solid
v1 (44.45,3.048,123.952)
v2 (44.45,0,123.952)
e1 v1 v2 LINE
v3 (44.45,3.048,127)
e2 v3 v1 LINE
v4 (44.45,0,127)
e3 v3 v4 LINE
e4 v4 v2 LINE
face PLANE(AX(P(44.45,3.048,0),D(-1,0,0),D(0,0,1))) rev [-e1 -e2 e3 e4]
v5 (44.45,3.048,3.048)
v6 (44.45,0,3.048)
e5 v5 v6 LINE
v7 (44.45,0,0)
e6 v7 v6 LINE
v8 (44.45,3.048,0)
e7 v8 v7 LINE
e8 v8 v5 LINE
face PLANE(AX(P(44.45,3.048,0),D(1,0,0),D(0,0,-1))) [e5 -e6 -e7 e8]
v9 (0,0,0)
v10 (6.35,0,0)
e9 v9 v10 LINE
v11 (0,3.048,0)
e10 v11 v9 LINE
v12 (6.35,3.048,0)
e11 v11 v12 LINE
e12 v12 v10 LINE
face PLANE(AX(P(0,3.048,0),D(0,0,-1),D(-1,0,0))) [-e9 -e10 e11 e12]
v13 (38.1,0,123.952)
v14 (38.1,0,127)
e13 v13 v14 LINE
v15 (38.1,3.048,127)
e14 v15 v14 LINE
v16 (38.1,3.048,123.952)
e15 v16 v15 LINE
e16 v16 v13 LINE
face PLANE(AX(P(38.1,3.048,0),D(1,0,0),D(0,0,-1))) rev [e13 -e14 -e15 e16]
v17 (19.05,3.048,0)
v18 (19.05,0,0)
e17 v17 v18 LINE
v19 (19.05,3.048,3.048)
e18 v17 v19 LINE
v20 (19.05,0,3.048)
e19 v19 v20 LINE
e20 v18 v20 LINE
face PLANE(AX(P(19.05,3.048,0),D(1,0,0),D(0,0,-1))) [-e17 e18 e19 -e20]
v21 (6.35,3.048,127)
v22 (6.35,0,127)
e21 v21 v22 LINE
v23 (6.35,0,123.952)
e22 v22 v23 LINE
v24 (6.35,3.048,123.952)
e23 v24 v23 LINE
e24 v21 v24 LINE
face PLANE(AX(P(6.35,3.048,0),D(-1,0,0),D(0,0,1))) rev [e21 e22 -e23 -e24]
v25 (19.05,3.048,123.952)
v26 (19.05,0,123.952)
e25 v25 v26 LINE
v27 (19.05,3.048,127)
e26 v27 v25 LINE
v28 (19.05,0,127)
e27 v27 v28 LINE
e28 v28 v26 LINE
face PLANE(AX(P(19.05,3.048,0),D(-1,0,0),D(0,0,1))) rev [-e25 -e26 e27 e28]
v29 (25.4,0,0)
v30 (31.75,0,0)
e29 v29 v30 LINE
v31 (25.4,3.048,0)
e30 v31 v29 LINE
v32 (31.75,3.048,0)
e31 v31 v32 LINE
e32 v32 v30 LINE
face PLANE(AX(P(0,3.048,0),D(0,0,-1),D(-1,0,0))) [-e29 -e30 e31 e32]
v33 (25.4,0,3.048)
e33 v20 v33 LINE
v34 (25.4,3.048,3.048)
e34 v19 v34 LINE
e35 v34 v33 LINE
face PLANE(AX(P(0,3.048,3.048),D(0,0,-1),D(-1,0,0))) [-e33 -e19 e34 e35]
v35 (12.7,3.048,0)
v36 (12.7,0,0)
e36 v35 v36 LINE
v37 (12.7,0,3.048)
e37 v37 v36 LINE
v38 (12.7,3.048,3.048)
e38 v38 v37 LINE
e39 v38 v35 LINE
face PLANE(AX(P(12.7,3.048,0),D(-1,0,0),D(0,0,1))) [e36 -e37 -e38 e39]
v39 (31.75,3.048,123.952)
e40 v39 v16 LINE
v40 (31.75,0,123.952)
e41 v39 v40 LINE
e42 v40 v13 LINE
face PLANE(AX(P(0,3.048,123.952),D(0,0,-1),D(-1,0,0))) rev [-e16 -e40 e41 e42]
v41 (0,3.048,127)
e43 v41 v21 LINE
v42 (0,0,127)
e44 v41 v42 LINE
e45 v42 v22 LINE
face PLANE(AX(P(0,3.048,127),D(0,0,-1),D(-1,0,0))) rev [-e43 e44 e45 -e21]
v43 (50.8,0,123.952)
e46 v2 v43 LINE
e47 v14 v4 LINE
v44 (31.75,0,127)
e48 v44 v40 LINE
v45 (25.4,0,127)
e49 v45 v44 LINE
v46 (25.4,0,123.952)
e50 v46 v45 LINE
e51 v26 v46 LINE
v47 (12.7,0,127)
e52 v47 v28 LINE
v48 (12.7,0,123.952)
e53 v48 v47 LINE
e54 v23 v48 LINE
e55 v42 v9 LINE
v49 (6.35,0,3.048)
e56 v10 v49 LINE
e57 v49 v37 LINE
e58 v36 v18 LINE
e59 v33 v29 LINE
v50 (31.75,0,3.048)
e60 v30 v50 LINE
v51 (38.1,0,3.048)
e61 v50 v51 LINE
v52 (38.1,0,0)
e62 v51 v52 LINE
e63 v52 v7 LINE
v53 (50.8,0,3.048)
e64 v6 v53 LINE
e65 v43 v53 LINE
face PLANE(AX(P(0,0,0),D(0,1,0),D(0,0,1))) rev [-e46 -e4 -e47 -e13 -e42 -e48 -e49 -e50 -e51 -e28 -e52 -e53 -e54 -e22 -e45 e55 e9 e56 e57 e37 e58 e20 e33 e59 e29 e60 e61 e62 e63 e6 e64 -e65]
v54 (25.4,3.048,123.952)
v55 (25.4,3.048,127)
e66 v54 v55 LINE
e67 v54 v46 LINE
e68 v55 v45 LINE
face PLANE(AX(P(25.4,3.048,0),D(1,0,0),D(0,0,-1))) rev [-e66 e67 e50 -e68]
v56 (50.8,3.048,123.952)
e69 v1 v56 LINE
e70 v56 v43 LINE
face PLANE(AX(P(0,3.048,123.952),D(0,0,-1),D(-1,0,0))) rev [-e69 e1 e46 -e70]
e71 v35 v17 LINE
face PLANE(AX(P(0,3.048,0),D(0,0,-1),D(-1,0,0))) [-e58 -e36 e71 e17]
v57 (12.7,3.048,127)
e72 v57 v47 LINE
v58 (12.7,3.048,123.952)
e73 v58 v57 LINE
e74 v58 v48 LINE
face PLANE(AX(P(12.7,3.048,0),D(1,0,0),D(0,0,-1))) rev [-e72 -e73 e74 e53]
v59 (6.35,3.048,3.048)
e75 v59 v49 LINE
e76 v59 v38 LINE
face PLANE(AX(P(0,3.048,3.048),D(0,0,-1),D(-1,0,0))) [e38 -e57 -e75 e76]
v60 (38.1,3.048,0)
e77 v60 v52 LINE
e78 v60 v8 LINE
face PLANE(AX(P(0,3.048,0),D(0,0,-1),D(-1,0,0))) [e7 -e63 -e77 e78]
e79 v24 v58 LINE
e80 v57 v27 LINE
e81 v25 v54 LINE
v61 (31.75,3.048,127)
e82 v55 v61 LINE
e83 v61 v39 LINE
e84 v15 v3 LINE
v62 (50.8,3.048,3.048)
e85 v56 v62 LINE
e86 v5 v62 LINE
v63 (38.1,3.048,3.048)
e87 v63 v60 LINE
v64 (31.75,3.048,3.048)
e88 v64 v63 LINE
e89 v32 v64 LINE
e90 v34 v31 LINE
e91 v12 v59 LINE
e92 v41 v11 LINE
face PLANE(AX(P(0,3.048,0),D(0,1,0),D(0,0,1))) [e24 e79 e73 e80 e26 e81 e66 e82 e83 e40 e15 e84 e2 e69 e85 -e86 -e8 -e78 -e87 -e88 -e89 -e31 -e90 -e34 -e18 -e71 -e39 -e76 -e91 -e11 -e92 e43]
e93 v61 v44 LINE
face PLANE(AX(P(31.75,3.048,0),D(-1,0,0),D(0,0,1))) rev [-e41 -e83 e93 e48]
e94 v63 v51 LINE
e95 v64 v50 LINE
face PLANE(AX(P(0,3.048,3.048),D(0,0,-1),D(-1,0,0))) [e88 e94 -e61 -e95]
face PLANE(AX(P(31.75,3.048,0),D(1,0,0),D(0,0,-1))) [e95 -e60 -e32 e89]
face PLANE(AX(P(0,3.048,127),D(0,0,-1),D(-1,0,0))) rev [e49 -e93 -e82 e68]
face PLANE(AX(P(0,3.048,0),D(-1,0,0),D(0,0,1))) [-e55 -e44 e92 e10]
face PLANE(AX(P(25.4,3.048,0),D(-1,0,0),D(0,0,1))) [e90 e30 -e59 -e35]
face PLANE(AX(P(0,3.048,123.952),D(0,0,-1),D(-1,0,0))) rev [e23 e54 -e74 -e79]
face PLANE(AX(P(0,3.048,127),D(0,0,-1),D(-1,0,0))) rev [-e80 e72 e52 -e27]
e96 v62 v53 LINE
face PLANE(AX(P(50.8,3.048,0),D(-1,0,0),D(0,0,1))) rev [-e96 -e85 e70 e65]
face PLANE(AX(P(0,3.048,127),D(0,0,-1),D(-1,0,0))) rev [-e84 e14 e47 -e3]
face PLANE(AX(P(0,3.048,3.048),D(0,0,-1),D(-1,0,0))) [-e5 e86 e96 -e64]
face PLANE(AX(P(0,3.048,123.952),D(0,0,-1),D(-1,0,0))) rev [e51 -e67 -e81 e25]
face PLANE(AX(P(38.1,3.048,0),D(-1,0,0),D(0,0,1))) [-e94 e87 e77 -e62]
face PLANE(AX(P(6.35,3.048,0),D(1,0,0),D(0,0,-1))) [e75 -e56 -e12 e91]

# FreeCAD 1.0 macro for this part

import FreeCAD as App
import Part
import Sketcher

V = App.Vector
Q = App.Units.Quantity

doc = App.newDocument("Part")
params = doc.addObject("Spreadsheet::Sheet", "Params")
for row, (alias, value) in enumerate([
    ("sketch1_height", "5 in"),
    ("sketch1_height2", "0.12 in"),
    ("pad1_length", "0.12 in"),
], start=1):
    params.set(f"A{row}", alias)
    params.set(f"B{row}", "=" + value)
    params.setAlias(f"B{row}", alias)

body = doc.addObject("PartDesign::Body", "Body")

# Sketch on XZ plane
sketch1 = body.newObject("Sketcher::SketchObject", "Sketch")
sketch1.AttachmentSupport = (doc.getObject("XZ_Plane"), [""])
sketch1.MapMode = "FlatFace"
sketch1.addGeometry([
    Part.LineSegment(V(6.3, 0, 0), V(0, 0, 0)),  # 0
    Part.LineSegment(V(0, 0, 0), V(0, 127, 0)),  # 1
    Part.LineSegment(V(0, 127, 0), V(6.3, 127, 0)),  # 2
    Part.LineSegment(V(6.3, 127, 0), V(6.3, 124, 0)),  # 3
    Part.LineSegment(V(6.3, 124, 0), V(12.7, 124, 0)),  # 4
    Part.LineSegment(V(12.7, 124, 0), V(12.7, 127, 0)),  # 5
    Part.LineSegment(V(12.7, 127, 0), V(19.1, 127, 0)),  # 6
    Part.LineSegment(V(19.1, 127, 0), V(19.1, 124, 0)),  # 7
    Part.LineSegment(V(19.1, 124, 0), V(25.4, 124, 0)),  # 8
    Part.LineSegment(V(25.4, 124, 0), V(25.4, 127, 0)),  # 9
    Part.LineSegment(V(25.4, 127, 0), V(31.8, 127, 0)),  # 10
    Part.LineSegment(V(31.8, 127, 0), V(31.8, 124, 0)),  # 11
    Part.LineSegment(V(31.8, 124, 0), V(38.1, 124, 0)),  # 12
    Part.LineSegment(V(38.1, 124, 0), V(38.1, 127, 0)),  # 13
    Part.LineSegment(V(38.1, 127, 0), V(44.5, 127, 0)),  # 14
    Part.LineSegment(V(44.5, 127, 0), V(44.5, 124, 0)),  # 15
    Part.LineSegment(V(44.5, 124, 0), V(50.8, 124, 0)),  # 16
    Part.LineSegment(V(50.8, 124, 0), V(50.8, 3, 0)),  # 17
    Part.LineSegment(V(50.8, 3, 0), V(44.5, 3, 0)),  # 18
    Part.LineSegment(V(44.5, 3, 0), V(44.5, 0, 0)),  # 19
    Part.LineSegment(V(44.5, 0, 0), V(38.1, 0, 0)),  # 20
    Part.LineSegment(V(38.1, 0, 0), V(38.1, 3, 0)),  # 21
    Part.LineSegment(V(38.1, 3, 0), V(31.8, 3, 0)),  # 22
    Part.LineSegment(V(31.8, 3, 0), V(31.8, 0, 0)),  # 23
    Part.LineSegment(V(31.8, 0, 0), V(25.4, 0, 0)),  # 24
    Part.LineSegment(V(25.4, 0, 0), V(25.4, 3, 0)),  # 25
    Part.LineSegment(V(25.4, 3, 0), V(19.1, 3, 0)),  # 26
    Part.LineSegment(V(19.1, 3, 0), V(19.1, 0, 0)),  # 27
    Part.LineSegment(V(19.1, 0, 0), V(12.7, 0, 0)),  # 28
    Part.LineSegment(V(12.7, 0, 0), V(12.7, 3, 0)),  # 29
    Part.LineSegment(V(12.7, 3, 0), V(6.3, 3, 0)),  # 30
    Part.LineSegment(V(6.3, 3, 0), V(6.3, 0, 0)),  # 31
], False)
sketch1.addConstraint([
    Sketcher.Constraint("Coincident", 0, 2, 1, 1),
    Sketcher.Constraint("Coincident", 1, 2, 2, 1),
    Sketcher.Constraint("Coincident", 2, 2, 3, 1),
    Sketcher.Constraint("Coincident", 3, 2, 4, 1),
    Sketcher.Constraint("Coincident", 4, 2, 5, 1),
    Sketcher.Constraint("Coincident", 5, 2, 6, 1),
    Sketcher.Constraint("Coincident", 6, 2, 7, 1),
    Sketcher.Constraint("Coincident", 7, 2, 8, 1),
    Sketcher.Constraint("Coincident", 8, 2, 9, 1),
    Sketcher.Constraint("Coincident", 9, 2, 10, 1),
    Sketcher.Constraint("Coincident", 10, 2, 11, 1),
    Sketcher.Constraint("Coincident", 11, 2, 12, 1),
    Sketcher.Constraint("Coincident", 12, 2, 13, 1),
    Sketcher.Constraint("Coincident", 13, 2, 14, 1),
    Sketcher.Constraint("Coincident", 14, 2, 15, 1),
    Sketcher.Constraint("Coincident", 15, 2, 16, 1),
    Sketcher.Constraint("Coincident", 16, 2, 17, 1),
    Sketcher.Constraint("Coincident", 17, 2, 18, 1),
    Sketcher.Constraint("Coincident", 18, 2, 19, 1),
    Sketcher.Constraint("Coincident", 19, 2, 20, 1),
    Sketcher.Constraint("Coincident", 20, 2, 21, 1),
    Sketcher.Constraint("Coincident", 21, 2, 22, 1),
    Sketcher.Constraint("Coincident", 22, 2, 23, 1),
    Sketcher.Constraint("Coincident", 23, 2, 24, 1),
    Sketcher.Constraint("Coincident", 24, 2, 25, 1),
    Sketcher.Constraint("Coincident", 25, 2, 26, 1),
    Sketcher.Constraint("Coincident", 26, 2, 27, 1),
    Sketcher.Constraint("Coincident", 27, 2, 28, 1),
    Sketcher.Constraint("Coincident", 28, 2, 29, 1),
    Sketcher.Constraint("Coincident", 29, 2, 30, 1),
    Sketcher.Constraint("Coincident", 30, 2, 31, 1),
    Sketcher.Constraint("Coincident", 31, 2, 0, 1),
    Sketcher.Constraint("Horizontal", 0),
    Sketcher.Constraint("Vertical", 1),
    Sketcher.Constraint("Horizontal", 2),
    Sketcher.Constraint("Vertical", 3),
    Sketcher.Constraint("Horizontal", 4),
    Sketcher.Constraint("Vertical", 5),
    Sketcher.Constraint("Horizontal", 6),
    Sketcher.Constraint("Vertical", 7),
    Sketcher.Constraint("Horizontal", 8),
    Sketcher.Constraint("Vertical", 9),
    Sketcher.Constraint("Horizontal", 10),
    Sketcher.Constraint("Vertical", 11),
    Sketcher.Constraint("Horizontal", 12),
    Sketcher.Constraint("Vertical", 13),
    Sketcher.Constraint("Horizontal", 14),
    Sketcher.Constraint("Vertical", 15),
    Sketcher.Constraint("Horizontal", 16),
    Sketcher.Constraint("Vertical", 17),
    Sketcher.Constraint("Horizontal", 18),
    Sketcher.Constraint("Vertical", 19),
    Sketcher.Constraint("Horizontal", 20),
    Sketcher.Constraint("Vertical", 21),
    Sketcher.Constraint("Horizontal", 22),
    Sketcher.Constraint("Vertical", 23),
    Sketcher.Constraint("Horizontal", 24),
    Sketcher.Constraint("Vertical", 25),
    Sketcher.Constraint("Horizontal", 26),
    Sketcher.Constraint("Vertical", 27),
    Sketcher.Constraint("Horizontal", 28),
    Sketcher.Constraint("Vertical", 29),
    Sketcher.Constraint("Horizontal", 30),
    Sketcher.Constraint("Vertical", 31),
    Sketcher.Constraint("Coincident", 0, 2, -1, 1),
    Sketcher.Constraint("PointOnObject", 19, 2, -1),
    Sketcher.Constraint("PointOnObject", 23, 2, -1),
    Sketcher.Constraint("PointOnObject", 27, 2, -1),
    Sketcher.Constraint("Horizontal", 2, 2, 5, 2),
    Sketcher.Constraint("Horizontal", 4, 2, 7, 2),
    Sketcher.Constraint("Horizontal", 6, 2, 9, 2),
    Sketcher.Constraint("Horizontal", 8, 2, 11, 2),
    Sketcher.Constraint("Horizontal", 10, 2, 13, 2),
    Sketcher.Constraint("Horizontal", 12, 2, 15, 2),
    Sketcher.Constraint("Horizontal", 18, 2, 21, 2),
    Sketcher.Constraint("Horizontal", 22, 2, 25, 2),
    Sketcher.Constraint("Horizontal", 26, 2, 29, 2),
    Sketcher.Constraint("Vertical", 15, 2, 18, 2),
    Sketcher.Constraint("Vertical", 13, 2, 20, 2),
    Sketcher.Constraint("Vertical", 11, 2, 22, 2),
    Sketcher.Constraint("Vertical", 9, 2, 24, 2),
    Sketcher.Constraint("Vertical", 7, 2, 26, 2),
    Sketcher.Constraint("Vertical", 5, 2, 28, 2),
    Sketcher.Constraint("Vertical", 3, 2, 30, 2),
    Sketcher.Constraint("Equal", 2, 4),
    Sketcher.Constraint("Equal", 4, 6),
    Sketcher.Constraint("Equal", 6, 8),
    Sketcher.Constraint("Equal", 8, 10),
    Sketcher.Constraint("Equal", 10, 12),
    Sketcher.Constraint("Equal", 12, 14),
    Sketcher.Constraint("Equal", 14, 16),
    Sketcher.Constraint("Equal", 15, 19),
    Sketcher.Constraint("DistanceY", 1, 1, 1, 2, Q("5 in")),
    Sketcher.Constraint("DistanceX", -1, 1, 8, 2, Q("1 in")),
    Sketcher.Constraint("DistanceY", 3, 2, 3, 1, Q("0.12 in")),
])
sketch1.setExpression("Constraints[92]", "Params.sketch1_height")
sketch1.setExpression("Constraints[94]", "Params.sketch1_height2")
pad1 = body.newObject("PartDesign::Pad", "Pad")
pad1.Profile = sketch1
pad1.setExpression("Length", "Params.pad1_length")
pad1.Reversed = True

doc.recompute()
